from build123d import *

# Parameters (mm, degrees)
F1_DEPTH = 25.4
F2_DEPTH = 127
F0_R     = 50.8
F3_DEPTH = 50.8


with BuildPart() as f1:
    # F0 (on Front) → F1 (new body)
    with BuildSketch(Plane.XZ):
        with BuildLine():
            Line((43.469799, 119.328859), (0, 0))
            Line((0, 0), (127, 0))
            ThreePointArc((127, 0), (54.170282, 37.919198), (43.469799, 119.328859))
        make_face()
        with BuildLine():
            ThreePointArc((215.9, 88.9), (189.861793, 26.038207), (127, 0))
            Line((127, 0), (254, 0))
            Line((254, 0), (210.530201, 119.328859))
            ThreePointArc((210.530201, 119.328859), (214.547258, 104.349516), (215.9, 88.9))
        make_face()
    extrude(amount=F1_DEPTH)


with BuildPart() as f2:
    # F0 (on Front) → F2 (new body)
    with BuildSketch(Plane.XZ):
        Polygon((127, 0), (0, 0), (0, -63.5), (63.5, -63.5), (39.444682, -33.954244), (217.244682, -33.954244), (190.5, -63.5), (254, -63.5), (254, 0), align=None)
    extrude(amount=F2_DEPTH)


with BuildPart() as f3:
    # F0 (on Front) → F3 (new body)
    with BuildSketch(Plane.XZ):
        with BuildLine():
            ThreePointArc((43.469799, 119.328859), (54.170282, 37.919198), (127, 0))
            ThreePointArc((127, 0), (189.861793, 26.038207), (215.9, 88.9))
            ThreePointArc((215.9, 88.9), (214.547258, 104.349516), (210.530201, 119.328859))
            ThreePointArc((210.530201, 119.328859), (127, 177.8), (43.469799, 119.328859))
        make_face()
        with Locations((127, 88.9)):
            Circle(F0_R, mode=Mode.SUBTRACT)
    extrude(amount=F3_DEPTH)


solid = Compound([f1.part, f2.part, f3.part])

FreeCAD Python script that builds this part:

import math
import FreeCAD as App
import Part
import Sketcher

V = App.Vector
Q = App.Units.Quantity

doc = App.newDocument("Part")
body = doc.addObject("PartDesign::Body", "Body")
body.AllowCompound = True

sketch1 = doc.addObject("Sketcher::SketchObject", "Sketch")
body.addObject(sketch1)
sketch1.AttachmentSupport = (doc.XZ_Plane, [""])
sketch1.MapMode = "FlatFace"
sketch1.addGeometry(Part.LineSegment(V(43, 119, 0), V(0, 0, 0)), False)
sketch1.addGeometry(Part.LineSegment(V(0, 0, 0), V(127, 0, 0)), False)
sketch1.addGeometry(Part.ArcOfCircle(Part.Circle(V(127, 89, 0), V(0, 0, 1), 89), math.radians(160), math.radians(270)), False)
sketch1.addGeometry(Part.ArcOfCircle(Part.Circle(V(127, 89, 0), V(0, 0, 1), 89), math.radians(-90), math.radians(0)), False)
sketch1.addGeometry(Part.LineSegment(V(127, 0, 0), V(254, 0, 0)), False)
sketch1.addGeometry(Part.LineSegment(V(254, 0, 0), V(211, 119, 0)), False)
sketch1.addGeometry(Part.ArcOfCircle(Part.Circle(V(127, 89, 0), V(0, 0, 1), 89), math.radians(0), math.radians(20)), False)
sketch1.addConstraint(Sketcher.Constraint("Coincident", 0, 2, 1, 1))
sketch1.addConstraint(Sketcher.Constraint("Tangent", 1, 2, 2, 2))
sketch1.addConstraint(Sketcher.Constraint("Tangent", 2, 1, 0, 1))
sketch1.addConstraint(Sketcher.Constraint("Tangent", 3, 1, 4, 1))
sketch1.addConstraint(Sketcher.Constraint("Coincident", 4, 2, 5, 1))
sketch1.addConstraint(Sketcher.Constraint("Tangent", 5, 2, 6, 2))
sketch1.addConstraint(Sketcher.Constraint("Tangent", 6, 1, 3, 2))
sketch1.addConstraint(Sketcher.Constraint("Horizontal", 1))
sketch1.addConstraint(Sketcher.Constraint("Horizontal", 4))
sketch1.addConstraint(Sketcher.Constraint("Coincident", 0, 2, -1, 1))
sketch1.addConstraint(Sketcher.Constraint("Coincident", 3, 3, 2, 3))
sketch1.addConstraint(Sketcher.Constraint("Equal", 2, 3))
sketch1.addConstraint(Sketcher.Constraint("Horizontal", 2, 1, 5, 2))
sketch1.addConstraint(Sketcher.Constraint("Horizontal", 3, 3, 6, 1))
sketch1.addConstraint(Sketcher.Constraint("Equal", 1, 4))
sketch1.addConstraint(Sketcher.Constraint("Radius", 2, Q("3.5 in")))
sketch1.addConstraint(Sketcher.Constraint("DistanceX", 1, 1, 1, 2, Q("5 in")))
pad1 = doc.addObject("PartDesign::Pad", "Pad")
body.addObject(pad1)
pad1.Profile = sketch1
pad1.Length = Q("1 in")
body2 = doc.addObject("PartDesign::Body", "Body001")

sketch2 = doc.addObject("Sketcher::SketchObject", "Sketch001")
body2.addObject(sketch2)
sketch2.AttachmentSupport = (doc.getObject("XZ_Plane001"), [""])
sketch2.MapMode = "FlatFace"
sketch2.addGeometry(Part.LineSegment(V(0, 0, 0), V(0, -64, 0)), False)
sketch2.addGeometry(Part.LineSegment(V(0, -64, 0), V(64, -64, 0)), False)
sketch2.addGeometry(Part.LineSegment(V(64, -64, 0), V(39, -34, 0)), False)
sketch2.addGeometry(Part.LineSegment(V(39, -34, 0), V(217, -34, 0)), False)
sketch2.addGeometry(Part.LineSegment(V(217, -34, 0), V(190, -64, 0)), False)
sketch2.addGeometry(Part.LineSegment(V(190, -64, 0), V(254, -64, 0)), False)
sketch2.addGeometry(Part.LineSegment(V(254, -64, 0), V(254, 0, 0)), False)
sketch2.addGeometry(Part.LineSegment(V(254, 0, 0), V(0, 0, 0)), False)
sketch2.addConstraint(Sketcher.Constraint("Coincident", 0, 2, 1, 1))
sketch2.addConstraint(Sketcher.Constraint("Coincident", 1, 2, 2, 1))
sketch2.addConstraint(Sketcher.Constraint("Coincident", 2, 2, 3, 1))
sketch2.addConstraint(Sketcher.Constraint("Coincident", 3, 2, 4, 1))
sketch2.addConstraint(Sketcher.Constraint("Coincident", 4, 2, 5, 1))
sketch2.addConstraint(Sketcher.Constraint("Coincident", 5, 2, 6, 1))
sketch2.addConstraint(Sketcher.Constraint("Coincident", 6, 2, 7, 1))
sketch2.addConstraint(Sketcher.Constraint("Coincident", 7, 2, 0, 1))
sketch2.addConstraint(Sketcher.Constraint("Vertical", 0))
sketch2.addConstraint(Sketcher.Constraint("Horizontal", 1))
sketch2.addConstraint(Sketcher.Constraint("Horizontal", 3))
sketch2.addConstraint(Sketcher.Constraint("Horizontal", 5))
sketch2.addConstraint(Sketcher.Constraint("Vertical", 6))
sketch2.addConstraint(Sketcher.Constraint("Horizontal", 7))
sketch2.addConstraint(Sketcher.Constraint("Coincident", 7, 2, -1, 1))
sketch2.addConstraint(Sketcher.Constraint("Horizontal", 1, 2, 4, 2))
sketch2.addConstraint(Sketcher.Constraint("Equal", 1, 5))
sketch2.addConstraint(Sketcher.Constraint("Equal", 5, 0))
sketch2.addConstraint(Sketcher.Constraint("DistanceX", 3, 1, 3, 2, Q("7 in")))
sketch2.addConstraint(Sketcher.Constraint("DistanceX", 7, 2, 7, 1, Q("10 in")))
sketch2.addConstraint(Sketcher.Constraint("DistanceX", 1, 1, 1, 2, Q("2.5 in")))
sketch2.addConstraint(Sketcher.Constraint("Distance", 2, Q("1.5 in")))
sketch2.addConstraint(Sketcher.Constraint("Distance", 4, Q("1.569 in")))
pad2 = doc.addObject("PartDesign::Pad", "Pad001")
body2.addObject(pad2)
pad2.Profile = sketch2
pad2.Length = Q("5 in")
body3 = doc.addObject("PartDesign::Body", "Body002")

sketch3 = doc.addObject("Sketcher::SketchObject", "Sketch002")
body3.addObject(sketch3)
sketch3.AttachmentSupport = (doc.getObject("XZ_Plane002"), [""])
sketch3.MapMode = "FlatFace"
sketch3.addGeometry(Part.ArcOfCircle(Part.Circle(V(127, 89, 0), V(0, 0, 1), 89), math.radians(160), math.radians(270)), False)
sketch3.addGeometry(Part.ArcOfCircle(Part.Circle(V(127, 89, 0), V(0, 0, 1), 89), math.radians(-90), math.radians(0)), False)
sketch3.addGeometry(Part.ArcOfCircle(Part.Circle(V(127, 89, 0), V(0, 0, 1), 89), math.radians(0), math.radians(20)), False)
sketch3.addGeometry(Part.ArcOfCircle(Part.Circle(V(127, 89, 0), V(0, 0, 1), 89), math.radians(20), math.radians(160)), False)
sketch3.addGeometry(Part.Circle(V(127, 89, 0), V(0, 0, 1), 51), False)
sketch3.addConstraint(Sketcher.Constraint("Tangent", 0, 2, 1, 1))
sketch3.addConstraint(Sketcher.Constraint("Tangent", 1, 2, 2, 1))
sketch3.addConstraint(Sketcher.Constraint("Tangent", 2, 2, 3, 1))
sketch3.addConstraint(Sketcher.Constraint("Tangent", 3, 2, 0, 1))
sketch3.addConstraint(Sketcher.Constraint("Coincident", 4, 3, 0, 3))
sketch3.addConstraint(Sketcher.Constraint("Equal", 0, 1))
sketch3.addConstraint(Sketcher.Constraint("PointOnObject", 0, 2, -1))
sketch3.addConstraint(Sketcher.Constraint("Horizontal", 4, 3, 1, 2))
sketch3.addConstraint(Sketcher.Constraint("Horizontal", 2, 2, 3, 2))
sketch3.addConstraint(Sketcher.Constraint("Vertical", 4, 3, 0, 2))
sketch3.addConstraint(Sketcher.Constraint("Diameter", 4, Q("4 in")))
sketch3.addConstraint(Sketcher.Constraint("Radius", 0, Q("3.5 in")))
sketch3.addConstraint(Sketcher.Constraint("DistanceX", -1, 1, 0, 3, Q("5 in")))
sketch3.addConstraint(Sketcher.Constraint("DistanceX", -1, 1, 2, 2, 210.530201))
pad3 = doc.addObject("PartDesign::Pad", "Pad002")
body3.addObject(pad3)
pad3.Profile = sketch3
pad3.Length = Q("2 in")

doc.recompute()
